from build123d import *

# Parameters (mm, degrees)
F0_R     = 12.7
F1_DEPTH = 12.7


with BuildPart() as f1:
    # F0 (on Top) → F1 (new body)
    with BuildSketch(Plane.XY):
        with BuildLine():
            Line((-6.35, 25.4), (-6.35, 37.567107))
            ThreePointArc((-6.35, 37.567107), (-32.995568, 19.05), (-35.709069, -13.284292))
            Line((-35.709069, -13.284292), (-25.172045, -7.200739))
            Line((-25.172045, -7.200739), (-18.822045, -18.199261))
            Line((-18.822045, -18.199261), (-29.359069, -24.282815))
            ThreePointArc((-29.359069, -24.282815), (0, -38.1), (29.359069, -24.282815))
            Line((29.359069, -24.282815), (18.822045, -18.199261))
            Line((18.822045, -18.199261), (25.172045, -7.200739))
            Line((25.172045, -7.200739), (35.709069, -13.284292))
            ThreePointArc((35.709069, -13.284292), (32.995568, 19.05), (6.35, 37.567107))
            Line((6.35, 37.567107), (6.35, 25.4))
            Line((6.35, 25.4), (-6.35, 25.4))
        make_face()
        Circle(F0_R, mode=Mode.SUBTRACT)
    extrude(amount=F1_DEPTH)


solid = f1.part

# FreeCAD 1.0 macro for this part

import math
import FreeCAD as App
import Part
import Sketcher
Q = App.Units.Quantity

doc = App.newDocument("Part")
body = doc.addObject("PartDesign::Body", "Body")

sketch1 = body.newObject("Sketcher::SketchObject", "Sketch")
sketch1.AttachmentSupport = (doc.getObject("XY_Plane"), [""])
sketch1.MapMode = "FlatFace"
sketch1.addGeometry([
    Part.LineSegment(App.Vector(-6.35, 25.4, 0), App.Vector(-6.35, 37.567107, 0)),
    Part.ArcOfCircle(Part.Circle(App.Vector(0.000001, 0, 0), App.Vector(0, 0, 1), 38.100001), math.radians(99.594069), math.radians(200.405931)),
    Part.LineSegment(App.Vector(-35.709069, -13.284292, 0), App.Vector(-25.172045, -7.200739, 0)),
    Part.LineSegment(App.Vector(-25.172045, -7.200739, 0), App.Vector(-18.822045, -18.199261, 0)),
    Part.LineSegment(App.Vector(-18.822045, -18.199261, 0), App.Vector(-29.359069, -24.282815, 0)),
    Part.ArcOfCircle(Part.Circle(App.Vector(0, 0.000001, 0), App.Vector(0, 0, 1), 38.100001), math.radians(-140.40593), math.radians(-39.59407)),
    Part.LineSegment(App.Vector(29.359069, -24.282815, 0), App.Vector(18.822045, -18.199261, 0)),
    Part.LineSegment(App.Vector(18.822045, -18.199261, 0), App.Vector(25.172045, -7.200739, 0)),
    Part.LineSegment(App.Vector(25.172045, -7.200739, 0), App.Vector(35.709069, -13.284292, 0)),
    Part.ArcOfCircle(Part.Circle(App.Vector(-0.000001, 0, 0), App.Vector(0, 0, 1), 38.100001), math.radians(-20.405931), math.radians(80.405931)),
    Part.LineSegment(App.Vector(6.35, 37.567107, 0), App.Vector(6.35, 25.4, 0)),
    Part.LineSegment(App.Vector(6.35, 25.4, 0), App.Vector(-6.35, 25.4, 0)),
    Part.Circle(App.Vector(0, 0, 0), App.Vector(0, 0, 1), 12.7),
], False)
sketch1.addConstraint([
    Sketcher.Constraint("Coincident", 0, 2, 1, 1),
    Sketcher.Constraint("Coincident", 1, 2, 2, 1),
    Sketcher.Constraint("Coincident", 2, 2, 3, 1),
    Sketcher.Constraint("Coincident", 3, 2, 4, 1),
    Sketcher.Constraint("Coincident", 4, 2, 5, 1),
    Sketcher.Constraint("Coincident", 5, 2, 6, 1),
    Sketcher.Constraint("Coincident", 6, 2, 7, 1),
    Sketcher.Constraint("Coincident", 7, 2, 8, 1),
    Sketcher.Constraint("Coincident", 8, 2, 9, 1),
    Sketcher.Constraint("Coincident", 9, 2, 10, 1),
    Sketcher.Constraint("Coincident", 10, 2, 11, 1),
    Sketcher.Constraint("Coincident", 11, 2, 0, 1),
    Sketcher.Constraint("Vertical", 0),
    Sketcher.Constraint("Vertical", 10),
    Sketcher.Constraint("Horizontal", 11),
    Sketcher.Constraint("Coincident", 1, 3, -1, 1),
    Sketcher.Constraint("Coincident", 5, 3, -1, 1),
    Sketcher.Constraint("Coincident", 9, 3, -1, 1),
    Sketcher.Constraint("Coincident", 12, 3, -1, 1),
    Sketcher.Constraint("Equal", 1, 5),
    Sketcher.Constraint("Equal", 5, 9),
    Sketcher.Constraint("Symmetric", 3, 2, 6, 2, -2),
    Sketcher.Constraint("Symmetric", 2, 2, 7, 2, -2),
    Sketcher.Constraint("Perpendicular", 2, 3),
    Sketcher.Constraint("Perpendicular", 3, 4),
    Sketcher.Constraint("Perpendicular", 6, 7),
    Sketcher.Constraint("Perpendicular", 7, 8),
    Sketcher.Constraint("Horizontal", 0, 2, 9, 2),
    Sketcher.Constraint("Equal", 2, 4),
    Sketcher.Constraint("Diameter", 12, Q("1 in")),
    Sketcher.Constraint("Radius", 1, Q("1.5 in")),
    Sketcher.Constraint("DistanceX", 11, 2, 11, 1, Q("0.5 in")),
    Sketcher.Constraint("DistanceY", -1, 1, 10, 2, Q("1 in")),
    Sketcher.Constraint("Angle", 2, Q("29.999997 deg")),
    Sketcher.Constraint("Distance", 3, Q("0.5 in")),
    Sketcher.Constraint("DistanceY", 2, 2, -1, 1, 7.200739),
])
pad1 = body.newObject("PartDesign::Pad", "Pad")
pad1.Profile = sketch1
pad1.Length = Q("0.5 in")

doc.recompute()
